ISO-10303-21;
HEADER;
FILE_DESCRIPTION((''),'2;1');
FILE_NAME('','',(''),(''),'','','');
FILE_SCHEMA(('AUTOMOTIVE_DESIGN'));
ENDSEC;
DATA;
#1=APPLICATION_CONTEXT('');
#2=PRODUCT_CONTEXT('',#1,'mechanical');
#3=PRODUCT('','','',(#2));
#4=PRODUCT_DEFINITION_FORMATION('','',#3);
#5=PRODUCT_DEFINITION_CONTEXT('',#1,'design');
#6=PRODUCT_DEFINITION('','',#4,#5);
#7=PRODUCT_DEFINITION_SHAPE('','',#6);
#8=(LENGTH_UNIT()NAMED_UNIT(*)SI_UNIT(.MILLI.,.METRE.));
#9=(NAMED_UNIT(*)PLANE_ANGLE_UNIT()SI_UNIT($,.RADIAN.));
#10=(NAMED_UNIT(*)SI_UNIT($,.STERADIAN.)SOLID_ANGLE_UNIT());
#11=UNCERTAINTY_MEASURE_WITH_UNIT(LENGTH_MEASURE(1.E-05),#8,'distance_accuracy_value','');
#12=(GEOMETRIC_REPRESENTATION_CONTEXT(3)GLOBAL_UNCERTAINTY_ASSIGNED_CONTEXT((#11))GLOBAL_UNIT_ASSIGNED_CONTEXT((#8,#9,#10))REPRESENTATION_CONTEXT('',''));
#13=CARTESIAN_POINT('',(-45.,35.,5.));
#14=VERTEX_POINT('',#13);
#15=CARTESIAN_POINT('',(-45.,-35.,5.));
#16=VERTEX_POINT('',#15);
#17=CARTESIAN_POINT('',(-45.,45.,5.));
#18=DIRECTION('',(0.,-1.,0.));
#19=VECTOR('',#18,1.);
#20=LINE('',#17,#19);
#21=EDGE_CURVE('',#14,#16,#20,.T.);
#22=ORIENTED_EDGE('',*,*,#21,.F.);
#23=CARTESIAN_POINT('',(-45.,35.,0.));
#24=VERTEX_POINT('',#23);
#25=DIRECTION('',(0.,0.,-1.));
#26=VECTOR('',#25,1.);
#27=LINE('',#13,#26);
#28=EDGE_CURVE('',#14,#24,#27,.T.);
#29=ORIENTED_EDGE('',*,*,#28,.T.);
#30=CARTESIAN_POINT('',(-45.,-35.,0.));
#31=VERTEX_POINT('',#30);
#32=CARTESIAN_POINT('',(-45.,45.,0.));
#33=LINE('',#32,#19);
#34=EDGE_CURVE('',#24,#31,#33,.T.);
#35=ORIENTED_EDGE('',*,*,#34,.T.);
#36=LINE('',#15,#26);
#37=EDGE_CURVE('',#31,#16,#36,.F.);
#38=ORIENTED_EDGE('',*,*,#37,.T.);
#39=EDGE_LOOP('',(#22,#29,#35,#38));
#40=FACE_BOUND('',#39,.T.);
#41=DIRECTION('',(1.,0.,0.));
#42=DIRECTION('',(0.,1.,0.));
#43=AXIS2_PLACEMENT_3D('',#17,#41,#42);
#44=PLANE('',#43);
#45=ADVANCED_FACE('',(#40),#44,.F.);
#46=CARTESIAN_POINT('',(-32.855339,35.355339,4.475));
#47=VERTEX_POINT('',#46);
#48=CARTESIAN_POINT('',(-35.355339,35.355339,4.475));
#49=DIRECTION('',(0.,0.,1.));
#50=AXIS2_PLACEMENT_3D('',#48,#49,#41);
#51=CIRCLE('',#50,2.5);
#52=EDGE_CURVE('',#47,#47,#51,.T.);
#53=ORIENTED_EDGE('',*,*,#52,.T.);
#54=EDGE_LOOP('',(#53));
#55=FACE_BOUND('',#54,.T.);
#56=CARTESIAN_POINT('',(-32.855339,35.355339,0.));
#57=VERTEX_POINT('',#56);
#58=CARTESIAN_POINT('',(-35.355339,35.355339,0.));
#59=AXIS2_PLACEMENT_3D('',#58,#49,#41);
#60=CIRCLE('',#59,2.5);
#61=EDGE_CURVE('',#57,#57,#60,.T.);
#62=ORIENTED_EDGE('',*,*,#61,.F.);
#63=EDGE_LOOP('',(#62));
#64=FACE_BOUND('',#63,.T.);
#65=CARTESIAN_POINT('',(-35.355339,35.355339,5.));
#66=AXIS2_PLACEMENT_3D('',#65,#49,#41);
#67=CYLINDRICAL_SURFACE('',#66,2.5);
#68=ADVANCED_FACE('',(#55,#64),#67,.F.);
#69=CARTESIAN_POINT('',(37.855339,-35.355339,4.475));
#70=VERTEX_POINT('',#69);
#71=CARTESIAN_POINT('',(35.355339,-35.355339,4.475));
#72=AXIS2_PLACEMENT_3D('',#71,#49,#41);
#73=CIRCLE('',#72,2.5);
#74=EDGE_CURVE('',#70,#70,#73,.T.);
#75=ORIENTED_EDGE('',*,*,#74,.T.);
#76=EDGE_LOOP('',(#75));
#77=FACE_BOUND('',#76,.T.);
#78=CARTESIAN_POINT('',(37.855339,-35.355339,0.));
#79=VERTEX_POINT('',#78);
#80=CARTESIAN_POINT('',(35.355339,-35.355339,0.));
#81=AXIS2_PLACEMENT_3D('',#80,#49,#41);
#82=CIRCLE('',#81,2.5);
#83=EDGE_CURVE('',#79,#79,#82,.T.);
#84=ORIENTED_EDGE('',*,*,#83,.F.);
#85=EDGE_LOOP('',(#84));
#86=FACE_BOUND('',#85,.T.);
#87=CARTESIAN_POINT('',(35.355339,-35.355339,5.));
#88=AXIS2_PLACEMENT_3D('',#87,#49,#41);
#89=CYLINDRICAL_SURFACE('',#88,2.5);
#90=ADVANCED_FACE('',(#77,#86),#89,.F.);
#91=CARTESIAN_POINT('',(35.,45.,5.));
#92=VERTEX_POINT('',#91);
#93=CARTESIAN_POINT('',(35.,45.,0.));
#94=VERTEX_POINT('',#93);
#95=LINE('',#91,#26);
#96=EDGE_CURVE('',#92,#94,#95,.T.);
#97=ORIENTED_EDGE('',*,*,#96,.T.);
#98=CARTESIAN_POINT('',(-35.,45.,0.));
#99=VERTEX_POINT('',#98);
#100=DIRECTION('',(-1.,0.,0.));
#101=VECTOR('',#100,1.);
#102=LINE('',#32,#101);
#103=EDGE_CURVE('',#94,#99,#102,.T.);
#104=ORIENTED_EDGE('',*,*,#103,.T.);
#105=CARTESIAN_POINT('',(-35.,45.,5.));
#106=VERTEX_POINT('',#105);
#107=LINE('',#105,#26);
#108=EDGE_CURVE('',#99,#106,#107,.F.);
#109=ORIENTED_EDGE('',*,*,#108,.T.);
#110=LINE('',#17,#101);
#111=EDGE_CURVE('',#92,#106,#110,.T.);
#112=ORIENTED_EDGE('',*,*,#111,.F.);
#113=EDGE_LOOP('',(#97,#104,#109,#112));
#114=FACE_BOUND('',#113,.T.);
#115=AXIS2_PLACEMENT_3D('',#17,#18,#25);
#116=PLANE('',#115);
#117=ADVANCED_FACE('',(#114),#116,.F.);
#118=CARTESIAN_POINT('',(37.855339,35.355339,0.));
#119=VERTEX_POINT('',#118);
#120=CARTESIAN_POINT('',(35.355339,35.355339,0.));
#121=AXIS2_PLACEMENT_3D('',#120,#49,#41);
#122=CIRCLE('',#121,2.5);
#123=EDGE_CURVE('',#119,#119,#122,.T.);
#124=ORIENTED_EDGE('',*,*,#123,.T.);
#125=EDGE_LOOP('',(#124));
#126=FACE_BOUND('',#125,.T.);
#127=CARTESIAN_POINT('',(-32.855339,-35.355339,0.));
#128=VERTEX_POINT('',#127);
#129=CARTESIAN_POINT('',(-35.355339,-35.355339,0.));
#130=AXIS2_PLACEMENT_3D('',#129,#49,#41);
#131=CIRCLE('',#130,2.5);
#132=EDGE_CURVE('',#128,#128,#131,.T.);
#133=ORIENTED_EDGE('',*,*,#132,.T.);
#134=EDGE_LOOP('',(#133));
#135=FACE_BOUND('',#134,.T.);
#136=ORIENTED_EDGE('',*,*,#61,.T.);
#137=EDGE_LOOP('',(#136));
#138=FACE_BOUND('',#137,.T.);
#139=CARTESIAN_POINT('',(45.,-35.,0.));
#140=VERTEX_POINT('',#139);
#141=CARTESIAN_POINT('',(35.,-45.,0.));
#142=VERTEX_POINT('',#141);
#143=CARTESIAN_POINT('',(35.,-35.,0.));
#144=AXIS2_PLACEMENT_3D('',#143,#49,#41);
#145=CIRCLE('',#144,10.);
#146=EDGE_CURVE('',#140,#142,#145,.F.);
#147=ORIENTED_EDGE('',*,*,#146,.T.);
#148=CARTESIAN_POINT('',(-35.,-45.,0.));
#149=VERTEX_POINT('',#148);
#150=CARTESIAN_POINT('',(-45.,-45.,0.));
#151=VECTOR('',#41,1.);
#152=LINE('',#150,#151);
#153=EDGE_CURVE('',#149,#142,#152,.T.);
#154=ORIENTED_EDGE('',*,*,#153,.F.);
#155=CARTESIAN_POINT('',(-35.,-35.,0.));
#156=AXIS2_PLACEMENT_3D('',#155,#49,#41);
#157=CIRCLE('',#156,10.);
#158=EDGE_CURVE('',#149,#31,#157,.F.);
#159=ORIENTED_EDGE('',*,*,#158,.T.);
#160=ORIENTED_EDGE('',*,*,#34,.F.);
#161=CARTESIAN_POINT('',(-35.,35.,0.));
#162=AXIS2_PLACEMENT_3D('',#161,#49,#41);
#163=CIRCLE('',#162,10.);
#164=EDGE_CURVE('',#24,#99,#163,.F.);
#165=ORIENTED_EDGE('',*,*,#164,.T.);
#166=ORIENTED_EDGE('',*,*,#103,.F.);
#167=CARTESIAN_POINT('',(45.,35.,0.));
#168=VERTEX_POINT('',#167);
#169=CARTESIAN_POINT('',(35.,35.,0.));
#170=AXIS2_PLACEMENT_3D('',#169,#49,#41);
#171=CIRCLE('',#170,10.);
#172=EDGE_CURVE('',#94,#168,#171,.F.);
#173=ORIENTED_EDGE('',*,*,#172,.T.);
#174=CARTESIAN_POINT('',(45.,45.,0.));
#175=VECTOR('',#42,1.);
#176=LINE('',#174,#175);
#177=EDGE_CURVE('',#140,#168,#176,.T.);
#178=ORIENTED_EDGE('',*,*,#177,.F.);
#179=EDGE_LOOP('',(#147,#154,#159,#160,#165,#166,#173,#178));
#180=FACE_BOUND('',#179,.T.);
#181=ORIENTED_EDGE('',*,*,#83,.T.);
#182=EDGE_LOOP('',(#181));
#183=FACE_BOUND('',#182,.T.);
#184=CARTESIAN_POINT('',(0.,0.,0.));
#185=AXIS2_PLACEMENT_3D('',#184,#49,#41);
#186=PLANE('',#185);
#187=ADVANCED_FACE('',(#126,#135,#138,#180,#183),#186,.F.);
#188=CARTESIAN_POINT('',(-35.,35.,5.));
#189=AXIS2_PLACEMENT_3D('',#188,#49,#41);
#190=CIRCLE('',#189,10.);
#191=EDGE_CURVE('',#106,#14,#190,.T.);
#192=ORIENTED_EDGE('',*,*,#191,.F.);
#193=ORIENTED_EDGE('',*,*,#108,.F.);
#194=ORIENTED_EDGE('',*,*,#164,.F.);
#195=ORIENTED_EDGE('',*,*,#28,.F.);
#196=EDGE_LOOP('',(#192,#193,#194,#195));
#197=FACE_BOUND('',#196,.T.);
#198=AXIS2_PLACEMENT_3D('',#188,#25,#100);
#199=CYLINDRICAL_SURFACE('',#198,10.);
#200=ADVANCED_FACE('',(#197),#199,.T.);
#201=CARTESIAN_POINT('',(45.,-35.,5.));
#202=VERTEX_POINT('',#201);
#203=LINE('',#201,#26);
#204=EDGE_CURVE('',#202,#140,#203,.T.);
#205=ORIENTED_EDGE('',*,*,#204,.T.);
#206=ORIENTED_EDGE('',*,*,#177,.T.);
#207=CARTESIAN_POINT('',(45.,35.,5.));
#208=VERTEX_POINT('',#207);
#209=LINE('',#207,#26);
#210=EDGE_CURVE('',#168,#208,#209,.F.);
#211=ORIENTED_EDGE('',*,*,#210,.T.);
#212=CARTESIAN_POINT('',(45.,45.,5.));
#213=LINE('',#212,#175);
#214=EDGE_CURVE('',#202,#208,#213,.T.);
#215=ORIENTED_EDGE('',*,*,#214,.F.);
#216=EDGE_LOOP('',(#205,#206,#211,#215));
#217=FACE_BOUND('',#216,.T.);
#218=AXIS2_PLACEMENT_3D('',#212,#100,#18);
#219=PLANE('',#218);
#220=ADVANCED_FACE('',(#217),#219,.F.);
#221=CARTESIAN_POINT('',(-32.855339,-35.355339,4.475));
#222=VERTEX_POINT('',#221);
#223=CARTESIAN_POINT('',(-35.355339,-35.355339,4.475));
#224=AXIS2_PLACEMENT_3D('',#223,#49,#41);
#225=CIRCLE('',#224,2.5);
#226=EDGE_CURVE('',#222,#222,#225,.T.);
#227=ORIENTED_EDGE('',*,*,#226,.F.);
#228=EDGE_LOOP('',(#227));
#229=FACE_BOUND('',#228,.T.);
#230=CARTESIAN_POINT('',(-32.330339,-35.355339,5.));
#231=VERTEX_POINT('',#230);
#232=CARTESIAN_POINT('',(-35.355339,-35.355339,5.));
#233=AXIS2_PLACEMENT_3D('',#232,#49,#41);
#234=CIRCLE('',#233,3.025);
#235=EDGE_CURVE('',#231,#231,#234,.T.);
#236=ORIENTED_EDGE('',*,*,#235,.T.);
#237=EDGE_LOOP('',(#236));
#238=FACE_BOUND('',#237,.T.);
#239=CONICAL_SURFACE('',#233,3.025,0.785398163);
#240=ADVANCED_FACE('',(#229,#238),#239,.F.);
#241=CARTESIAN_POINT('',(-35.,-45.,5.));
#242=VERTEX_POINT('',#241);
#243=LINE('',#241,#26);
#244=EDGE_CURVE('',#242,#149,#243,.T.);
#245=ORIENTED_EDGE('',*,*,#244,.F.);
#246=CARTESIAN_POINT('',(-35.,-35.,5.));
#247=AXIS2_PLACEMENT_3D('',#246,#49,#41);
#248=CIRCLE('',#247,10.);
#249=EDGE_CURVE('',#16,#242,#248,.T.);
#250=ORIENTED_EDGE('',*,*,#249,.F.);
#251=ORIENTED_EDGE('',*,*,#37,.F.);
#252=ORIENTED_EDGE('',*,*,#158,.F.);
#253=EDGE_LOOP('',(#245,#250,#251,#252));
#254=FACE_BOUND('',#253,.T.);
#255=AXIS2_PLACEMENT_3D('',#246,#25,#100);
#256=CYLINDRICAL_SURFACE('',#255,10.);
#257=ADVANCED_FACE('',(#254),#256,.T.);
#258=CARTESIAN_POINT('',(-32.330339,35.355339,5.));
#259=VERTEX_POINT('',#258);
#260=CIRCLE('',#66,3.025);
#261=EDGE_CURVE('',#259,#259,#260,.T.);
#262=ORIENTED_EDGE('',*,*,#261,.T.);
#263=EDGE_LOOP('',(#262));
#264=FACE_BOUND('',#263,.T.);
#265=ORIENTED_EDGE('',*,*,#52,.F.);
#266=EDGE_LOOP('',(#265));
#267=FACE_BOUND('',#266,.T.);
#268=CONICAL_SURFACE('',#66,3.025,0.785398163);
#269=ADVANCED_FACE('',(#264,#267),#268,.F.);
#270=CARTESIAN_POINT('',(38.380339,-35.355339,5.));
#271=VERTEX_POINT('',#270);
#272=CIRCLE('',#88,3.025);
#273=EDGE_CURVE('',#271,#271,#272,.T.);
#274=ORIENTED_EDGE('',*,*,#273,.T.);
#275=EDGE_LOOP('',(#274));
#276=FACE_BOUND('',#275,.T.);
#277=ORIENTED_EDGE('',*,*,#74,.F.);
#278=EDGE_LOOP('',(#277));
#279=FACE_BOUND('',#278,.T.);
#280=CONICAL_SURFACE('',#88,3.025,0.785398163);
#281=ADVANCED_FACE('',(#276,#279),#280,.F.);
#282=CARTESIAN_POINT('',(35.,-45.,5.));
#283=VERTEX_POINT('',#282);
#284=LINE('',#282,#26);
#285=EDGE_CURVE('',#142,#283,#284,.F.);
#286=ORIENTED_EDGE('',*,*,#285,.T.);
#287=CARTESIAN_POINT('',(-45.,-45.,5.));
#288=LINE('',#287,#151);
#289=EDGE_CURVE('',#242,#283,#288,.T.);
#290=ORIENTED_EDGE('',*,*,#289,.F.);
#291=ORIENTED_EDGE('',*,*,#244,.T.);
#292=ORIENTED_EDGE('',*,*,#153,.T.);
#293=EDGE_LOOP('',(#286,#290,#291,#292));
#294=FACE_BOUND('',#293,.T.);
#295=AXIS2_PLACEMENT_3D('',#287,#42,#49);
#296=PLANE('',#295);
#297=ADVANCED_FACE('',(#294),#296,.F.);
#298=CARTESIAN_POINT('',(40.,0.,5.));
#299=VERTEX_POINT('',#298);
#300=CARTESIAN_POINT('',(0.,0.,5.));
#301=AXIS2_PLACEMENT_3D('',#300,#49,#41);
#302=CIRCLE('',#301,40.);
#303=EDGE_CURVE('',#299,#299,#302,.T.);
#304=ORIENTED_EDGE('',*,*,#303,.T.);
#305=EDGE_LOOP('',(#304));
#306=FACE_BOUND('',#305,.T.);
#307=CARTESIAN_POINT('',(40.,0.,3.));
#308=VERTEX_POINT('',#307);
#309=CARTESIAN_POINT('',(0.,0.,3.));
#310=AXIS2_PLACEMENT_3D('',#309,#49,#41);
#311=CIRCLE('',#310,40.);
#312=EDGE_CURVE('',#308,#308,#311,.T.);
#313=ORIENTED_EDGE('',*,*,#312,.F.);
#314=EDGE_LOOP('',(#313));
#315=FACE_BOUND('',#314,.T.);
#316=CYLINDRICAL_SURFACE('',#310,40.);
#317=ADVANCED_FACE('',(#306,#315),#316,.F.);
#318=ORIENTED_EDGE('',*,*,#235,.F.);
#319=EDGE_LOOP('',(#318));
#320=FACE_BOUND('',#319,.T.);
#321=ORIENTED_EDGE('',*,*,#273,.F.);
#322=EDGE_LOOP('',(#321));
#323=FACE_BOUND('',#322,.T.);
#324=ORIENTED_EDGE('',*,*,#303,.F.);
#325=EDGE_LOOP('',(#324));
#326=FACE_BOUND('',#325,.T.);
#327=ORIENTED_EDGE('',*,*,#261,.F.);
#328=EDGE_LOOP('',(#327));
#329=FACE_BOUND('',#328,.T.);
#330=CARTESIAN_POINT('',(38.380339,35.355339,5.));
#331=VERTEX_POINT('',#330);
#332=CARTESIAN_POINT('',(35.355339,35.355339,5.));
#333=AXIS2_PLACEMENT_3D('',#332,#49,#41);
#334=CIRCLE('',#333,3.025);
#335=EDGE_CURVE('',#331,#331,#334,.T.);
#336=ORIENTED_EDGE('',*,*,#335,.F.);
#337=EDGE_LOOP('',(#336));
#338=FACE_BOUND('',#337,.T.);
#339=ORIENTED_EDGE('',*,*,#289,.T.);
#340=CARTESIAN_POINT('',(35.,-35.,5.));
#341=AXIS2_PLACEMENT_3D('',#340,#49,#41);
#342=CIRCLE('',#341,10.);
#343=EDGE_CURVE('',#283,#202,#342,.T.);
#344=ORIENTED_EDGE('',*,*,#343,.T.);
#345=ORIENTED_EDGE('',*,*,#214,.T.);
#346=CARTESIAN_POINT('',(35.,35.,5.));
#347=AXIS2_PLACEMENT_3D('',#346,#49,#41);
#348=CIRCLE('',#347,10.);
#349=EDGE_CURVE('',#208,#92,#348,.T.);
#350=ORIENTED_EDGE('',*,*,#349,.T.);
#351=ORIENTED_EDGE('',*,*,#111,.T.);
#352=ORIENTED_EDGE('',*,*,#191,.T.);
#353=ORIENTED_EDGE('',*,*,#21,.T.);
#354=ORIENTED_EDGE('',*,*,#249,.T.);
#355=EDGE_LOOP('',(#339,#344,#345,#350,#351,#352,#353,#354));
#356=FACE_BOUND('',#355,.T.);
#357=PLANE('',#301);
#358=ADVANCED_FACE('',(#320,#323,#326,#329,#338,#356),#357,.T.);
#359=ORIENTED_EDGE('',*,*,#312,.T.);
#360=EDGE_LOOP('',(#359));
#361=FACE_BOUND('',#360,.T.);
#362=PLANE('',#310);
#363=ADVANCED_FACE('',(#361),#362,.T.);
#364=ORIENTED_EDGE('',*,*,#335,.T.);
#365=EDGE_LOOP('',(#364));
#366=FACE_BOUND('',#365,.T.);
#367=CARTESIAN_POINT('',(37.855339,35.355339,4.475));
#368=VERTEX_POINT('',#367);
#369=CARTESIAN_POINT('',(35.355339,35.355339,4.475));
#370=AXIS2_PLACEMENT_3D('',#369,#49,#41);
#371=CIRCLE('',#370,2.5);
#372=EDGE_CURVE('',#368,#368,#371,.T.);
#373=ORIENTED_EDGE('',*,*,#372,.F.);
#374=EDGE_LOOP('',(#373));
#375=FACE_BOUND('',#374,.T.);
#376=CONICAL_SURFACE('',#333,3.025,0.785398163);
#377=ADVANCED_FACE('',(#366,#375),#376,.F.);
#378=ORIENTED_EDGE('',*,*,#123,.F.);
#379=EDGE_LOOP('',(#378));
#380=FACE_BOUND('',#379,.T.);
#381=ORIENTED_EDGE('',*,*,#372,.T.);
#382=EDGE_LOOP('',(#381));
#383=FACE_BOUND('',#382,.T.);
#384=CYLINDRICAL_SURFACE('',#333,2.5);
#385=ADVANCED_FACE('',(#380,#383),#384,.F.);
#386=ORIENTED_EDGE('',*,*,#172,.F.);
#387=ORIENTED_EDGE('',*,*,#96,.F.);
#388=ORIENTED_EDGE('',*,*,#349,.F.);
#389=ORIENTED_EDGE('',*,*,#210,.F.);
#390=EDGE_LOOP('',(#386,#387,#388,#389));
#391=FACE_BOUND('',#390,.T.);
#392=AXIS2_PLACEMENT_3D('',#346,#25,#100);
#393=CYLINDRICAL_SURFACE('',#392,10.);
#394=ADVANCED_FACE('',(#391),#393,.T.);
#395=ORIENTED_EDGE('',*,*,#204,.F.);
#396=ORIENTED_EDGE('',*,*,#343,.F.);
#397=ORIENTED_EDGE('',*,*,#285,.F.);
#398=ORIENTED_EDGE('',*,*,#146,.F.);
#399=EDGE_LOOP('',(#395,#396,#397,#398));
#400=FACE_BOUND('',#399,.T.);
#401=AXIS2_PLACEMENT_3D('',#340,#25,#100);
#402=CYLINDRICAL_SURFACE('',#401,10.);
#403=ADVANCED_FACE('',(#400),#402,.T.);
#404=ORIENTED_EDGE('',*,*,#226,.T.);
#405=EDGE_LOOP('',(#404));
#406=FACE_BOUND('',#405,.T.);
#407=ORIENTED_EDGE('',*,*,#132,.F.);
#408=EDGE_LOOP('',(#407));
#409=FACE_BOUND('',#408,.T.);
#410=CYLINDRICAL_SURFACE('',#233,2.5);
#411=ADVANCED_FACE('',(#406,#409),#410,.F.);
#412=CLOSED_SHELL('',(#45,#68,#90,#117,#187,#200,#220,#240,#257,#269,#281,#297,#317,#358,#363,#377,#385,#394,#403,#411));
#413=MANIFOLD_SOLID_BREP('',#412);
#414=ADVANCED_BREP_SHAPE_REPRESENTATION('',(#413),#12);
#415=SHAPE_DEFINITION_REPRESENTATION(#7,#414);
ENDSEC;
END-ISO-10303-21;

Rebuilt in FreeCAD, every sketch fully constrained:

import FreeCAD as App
import Part
import Sketcher


def edges_at(feature, points):
    """Names of the edges that pass closest to the given points."""
    edges = feature.Shape.Edges
    near = lambda p: min(range(len(edges)), key=lambda i: edges[i].distToShape(Part.Vertex(*p))[0])
    return sorted({f"Edge{near(p) + 1}" for p in points})

doc = App.newDocument("Part")
params = doc.addObject("Spreadsheet::Sheet", "Params")
for row, (alias, value) in enumerate([
    ("sketch1_width", "90 mm"),
    ("pad1_length", "5 mm"),
    ("fillet_radius", "10 mm"),
    ("sketch2_diameter", "5 mm"),
    ("hole_diameter", "5 mm"),
    ("hole_depth", "17 mm"),
    ("hole_csink_diameter", "6.05 mm"),
    ("sketch3_diameter", "80 mm"),
    ("pocket1_length", "2 mm"),
], start=1):
    params.set(f"A{row}", alias)
    params.set(f"B{row}", "=" + value)
    params.setAlias(f"B{row}", alias)

body = doc.addObject("PartDesign::Body", "Body")

# Sketch on XY plane
sketch1 = doc.addObject("Sketcher::SketchObject", "Sketch")
body.addObject(sketch1)
sketch1.AttachmentSupport = (doc.XY_Plane, [""])
sketch1.MapMode = "FlatFace"
sketch1.addGeometry([
    Part.LineSegment(App.Vector(-45, 45, 0), App.Vector(-45, -45, 0)),
    Part.LineSegment(App.Vector(-45, -45, 0), App.Vector(45, -45, 0)),
    Part.LineSegment(App.Vector(45, -45, 0), App.Vector(45, 45, 0)),
    Part.LineSegment(App.Vector(45, 45, 0), App.Vector(-45, 45, 0)),
], False)
sketch1.addConstraint([
    Sketcher.Constraint("Coincident", 0, 2, 1, 1),
    Sketcher.Constraint("Coincident", 1, 2, 2, 1),
    Sketcher.Constraint("Coincident", 2, 2, 3, 1),
    Sketcher.Constraint("Coincident", 3, 2, 0, 1),
    Sketcher.Constraint("Vertical", 0),
    Sketcher.Constraint("Horizontal", 1),
    Sketcher.Constraint("Vertical", 2),
    Sketcher.Constraint("Horizontal", 3),
    Sketcher.Constraint("Symmetric", 0, 2, 2, 2, -1, 1),
    Sketcher.Constraint("Equal", 3, 0),
    Sketcher.Constraint("DistanceX", 1, 1, 1, 2, 90.0),
])
sketch1.setExpression("Constraints[10]", "Params.sketch1_width")
pad1 = doc.addObject("PartDesign::Pad", "Pad")
body.addObject(pad1)
pad1.Profile = sketch1
pad1.setExpression("Length", "Params.pad1_length")
doc.recompute()

fillet = doc.addObject("PartDesign::Fillet", "Fillet")
body.addObject(fillet)
fillet.Base = (pad1, edges_at(pad1, [
    (45, -45, 2.5),
    (-45, -45, 2.5),
    (-45, 45, 2.5),
    (45, 45, 2.5),
]))
fillet.setExpression("Radius", "Params.fillet_radius")

# Sketch on XY plane
sketch2 = doc.addObject("Sketcher::SketchObject", "Sketch001")
body.addObject(sketch2)
sketch2.AttachmentSupport = (doc.XY_Plane, [""])
sketch2.MapMode = "FlatFace"
sketch2.AttachmentOffset = App.Placement(App.Vector(0, 0, 5), App.Rotation())
sketch2.addGeometry([
    Part.Circle(App.Vector(35.4, -35.4, 0), App.Vector(0, 0, 1), 2.5),
    Part.Circle(App.Vector(-35.4, 35.4, 0), App.Vector(0, 0, 1), 2.5),
    Part.Circle(App.Vector(35.4, 35.4, 0), App.Vector(0, 0, 1), 2.5),
    Part.Circle(App.Vector(-35.4, -35.4, 0), App.Vector(0, 0, 1), 2.5),
], False)
sketch2.addConstraint([
    Sketcher.Constraint("Equal", 0, 1),
    Sketcher.Constraint("Equal", 1, 2),
    Sketcher.Constraint("Equal", 2, 3),
    Sketcher.Constraint("Symmetric", 0, 3, 1, 3, -1, 1),
    Sketcher.Constraint("Symmetric", 2, 3, 3, 3, -1, 1),
    Sketcher.Constraint("Symmetric", 1, 3, 2, 3, -2),
    Sketcher.Constraint("Diameter", 0, 5.0),
    Sketcher.Constraint("DistanceX", -1, 1, 0, 3, 35.355339),
    Sketcher.Constraint("DistanceY", 0, 3, -1, 1, 35.355339),
])
sketch2.setExpression("Constraints[6]", "Params.sketch2_diameter")
doc.recompute()
hole = doc.addObject("PartDesign::Hole", "Hole")
body.addObject(hole)
hole.Profile = sketch2
hole.ThreadType = "None"
hole.setExpression("Diameter", "Params.hole_diameter")
hole.DepthType = "Dimension"
hole.setExpression("Depth", "Params.hole_depth")
hole.DrillPoint = "Angled"
hole.DrillPointAngle = 118
hole.HoleCutType = "Countersink"
hole.setExpression("HoleCutDiameter", "Params.hole_csink_diameter")
hole.HoleCutCountersinkAngle = 90

# Sketch on XY plane
sketch3 = doc.addObject("Sketcher::SketchObject", "Sketch002")
body.addObject(sketch3)
sketch3.AttachmentSupport = (doc.XY_Plane, [""])
sketch3.MapMode = "FlatFace"
sketch3.AttachmentOffset = App.Placement(App.Vector(0, 0, 5), App.Rotation())
sketch3.addGeometry(Part.Circle(App.Vector(0, 0, 0), App.Vector(0, 0, 1), 40), False)
sketch3.addConstraint([
    Sketcher.Constraint("Coincident", 0, 3, -1, 1),
    Sketcher.Constraint("Diameter", 0, 80.0),
])
sketch3.setExpression("Constraints[1]", "Params.sketch3_diameter")
pocket1 = doc.addObject("PartDesign::Pocket", "Pocket")
body.addObject(pocket1)
pocket1.Profile = sketch3
pocket1.setExpression("Length", "Params.pocket1_length")

doc.recompute()
